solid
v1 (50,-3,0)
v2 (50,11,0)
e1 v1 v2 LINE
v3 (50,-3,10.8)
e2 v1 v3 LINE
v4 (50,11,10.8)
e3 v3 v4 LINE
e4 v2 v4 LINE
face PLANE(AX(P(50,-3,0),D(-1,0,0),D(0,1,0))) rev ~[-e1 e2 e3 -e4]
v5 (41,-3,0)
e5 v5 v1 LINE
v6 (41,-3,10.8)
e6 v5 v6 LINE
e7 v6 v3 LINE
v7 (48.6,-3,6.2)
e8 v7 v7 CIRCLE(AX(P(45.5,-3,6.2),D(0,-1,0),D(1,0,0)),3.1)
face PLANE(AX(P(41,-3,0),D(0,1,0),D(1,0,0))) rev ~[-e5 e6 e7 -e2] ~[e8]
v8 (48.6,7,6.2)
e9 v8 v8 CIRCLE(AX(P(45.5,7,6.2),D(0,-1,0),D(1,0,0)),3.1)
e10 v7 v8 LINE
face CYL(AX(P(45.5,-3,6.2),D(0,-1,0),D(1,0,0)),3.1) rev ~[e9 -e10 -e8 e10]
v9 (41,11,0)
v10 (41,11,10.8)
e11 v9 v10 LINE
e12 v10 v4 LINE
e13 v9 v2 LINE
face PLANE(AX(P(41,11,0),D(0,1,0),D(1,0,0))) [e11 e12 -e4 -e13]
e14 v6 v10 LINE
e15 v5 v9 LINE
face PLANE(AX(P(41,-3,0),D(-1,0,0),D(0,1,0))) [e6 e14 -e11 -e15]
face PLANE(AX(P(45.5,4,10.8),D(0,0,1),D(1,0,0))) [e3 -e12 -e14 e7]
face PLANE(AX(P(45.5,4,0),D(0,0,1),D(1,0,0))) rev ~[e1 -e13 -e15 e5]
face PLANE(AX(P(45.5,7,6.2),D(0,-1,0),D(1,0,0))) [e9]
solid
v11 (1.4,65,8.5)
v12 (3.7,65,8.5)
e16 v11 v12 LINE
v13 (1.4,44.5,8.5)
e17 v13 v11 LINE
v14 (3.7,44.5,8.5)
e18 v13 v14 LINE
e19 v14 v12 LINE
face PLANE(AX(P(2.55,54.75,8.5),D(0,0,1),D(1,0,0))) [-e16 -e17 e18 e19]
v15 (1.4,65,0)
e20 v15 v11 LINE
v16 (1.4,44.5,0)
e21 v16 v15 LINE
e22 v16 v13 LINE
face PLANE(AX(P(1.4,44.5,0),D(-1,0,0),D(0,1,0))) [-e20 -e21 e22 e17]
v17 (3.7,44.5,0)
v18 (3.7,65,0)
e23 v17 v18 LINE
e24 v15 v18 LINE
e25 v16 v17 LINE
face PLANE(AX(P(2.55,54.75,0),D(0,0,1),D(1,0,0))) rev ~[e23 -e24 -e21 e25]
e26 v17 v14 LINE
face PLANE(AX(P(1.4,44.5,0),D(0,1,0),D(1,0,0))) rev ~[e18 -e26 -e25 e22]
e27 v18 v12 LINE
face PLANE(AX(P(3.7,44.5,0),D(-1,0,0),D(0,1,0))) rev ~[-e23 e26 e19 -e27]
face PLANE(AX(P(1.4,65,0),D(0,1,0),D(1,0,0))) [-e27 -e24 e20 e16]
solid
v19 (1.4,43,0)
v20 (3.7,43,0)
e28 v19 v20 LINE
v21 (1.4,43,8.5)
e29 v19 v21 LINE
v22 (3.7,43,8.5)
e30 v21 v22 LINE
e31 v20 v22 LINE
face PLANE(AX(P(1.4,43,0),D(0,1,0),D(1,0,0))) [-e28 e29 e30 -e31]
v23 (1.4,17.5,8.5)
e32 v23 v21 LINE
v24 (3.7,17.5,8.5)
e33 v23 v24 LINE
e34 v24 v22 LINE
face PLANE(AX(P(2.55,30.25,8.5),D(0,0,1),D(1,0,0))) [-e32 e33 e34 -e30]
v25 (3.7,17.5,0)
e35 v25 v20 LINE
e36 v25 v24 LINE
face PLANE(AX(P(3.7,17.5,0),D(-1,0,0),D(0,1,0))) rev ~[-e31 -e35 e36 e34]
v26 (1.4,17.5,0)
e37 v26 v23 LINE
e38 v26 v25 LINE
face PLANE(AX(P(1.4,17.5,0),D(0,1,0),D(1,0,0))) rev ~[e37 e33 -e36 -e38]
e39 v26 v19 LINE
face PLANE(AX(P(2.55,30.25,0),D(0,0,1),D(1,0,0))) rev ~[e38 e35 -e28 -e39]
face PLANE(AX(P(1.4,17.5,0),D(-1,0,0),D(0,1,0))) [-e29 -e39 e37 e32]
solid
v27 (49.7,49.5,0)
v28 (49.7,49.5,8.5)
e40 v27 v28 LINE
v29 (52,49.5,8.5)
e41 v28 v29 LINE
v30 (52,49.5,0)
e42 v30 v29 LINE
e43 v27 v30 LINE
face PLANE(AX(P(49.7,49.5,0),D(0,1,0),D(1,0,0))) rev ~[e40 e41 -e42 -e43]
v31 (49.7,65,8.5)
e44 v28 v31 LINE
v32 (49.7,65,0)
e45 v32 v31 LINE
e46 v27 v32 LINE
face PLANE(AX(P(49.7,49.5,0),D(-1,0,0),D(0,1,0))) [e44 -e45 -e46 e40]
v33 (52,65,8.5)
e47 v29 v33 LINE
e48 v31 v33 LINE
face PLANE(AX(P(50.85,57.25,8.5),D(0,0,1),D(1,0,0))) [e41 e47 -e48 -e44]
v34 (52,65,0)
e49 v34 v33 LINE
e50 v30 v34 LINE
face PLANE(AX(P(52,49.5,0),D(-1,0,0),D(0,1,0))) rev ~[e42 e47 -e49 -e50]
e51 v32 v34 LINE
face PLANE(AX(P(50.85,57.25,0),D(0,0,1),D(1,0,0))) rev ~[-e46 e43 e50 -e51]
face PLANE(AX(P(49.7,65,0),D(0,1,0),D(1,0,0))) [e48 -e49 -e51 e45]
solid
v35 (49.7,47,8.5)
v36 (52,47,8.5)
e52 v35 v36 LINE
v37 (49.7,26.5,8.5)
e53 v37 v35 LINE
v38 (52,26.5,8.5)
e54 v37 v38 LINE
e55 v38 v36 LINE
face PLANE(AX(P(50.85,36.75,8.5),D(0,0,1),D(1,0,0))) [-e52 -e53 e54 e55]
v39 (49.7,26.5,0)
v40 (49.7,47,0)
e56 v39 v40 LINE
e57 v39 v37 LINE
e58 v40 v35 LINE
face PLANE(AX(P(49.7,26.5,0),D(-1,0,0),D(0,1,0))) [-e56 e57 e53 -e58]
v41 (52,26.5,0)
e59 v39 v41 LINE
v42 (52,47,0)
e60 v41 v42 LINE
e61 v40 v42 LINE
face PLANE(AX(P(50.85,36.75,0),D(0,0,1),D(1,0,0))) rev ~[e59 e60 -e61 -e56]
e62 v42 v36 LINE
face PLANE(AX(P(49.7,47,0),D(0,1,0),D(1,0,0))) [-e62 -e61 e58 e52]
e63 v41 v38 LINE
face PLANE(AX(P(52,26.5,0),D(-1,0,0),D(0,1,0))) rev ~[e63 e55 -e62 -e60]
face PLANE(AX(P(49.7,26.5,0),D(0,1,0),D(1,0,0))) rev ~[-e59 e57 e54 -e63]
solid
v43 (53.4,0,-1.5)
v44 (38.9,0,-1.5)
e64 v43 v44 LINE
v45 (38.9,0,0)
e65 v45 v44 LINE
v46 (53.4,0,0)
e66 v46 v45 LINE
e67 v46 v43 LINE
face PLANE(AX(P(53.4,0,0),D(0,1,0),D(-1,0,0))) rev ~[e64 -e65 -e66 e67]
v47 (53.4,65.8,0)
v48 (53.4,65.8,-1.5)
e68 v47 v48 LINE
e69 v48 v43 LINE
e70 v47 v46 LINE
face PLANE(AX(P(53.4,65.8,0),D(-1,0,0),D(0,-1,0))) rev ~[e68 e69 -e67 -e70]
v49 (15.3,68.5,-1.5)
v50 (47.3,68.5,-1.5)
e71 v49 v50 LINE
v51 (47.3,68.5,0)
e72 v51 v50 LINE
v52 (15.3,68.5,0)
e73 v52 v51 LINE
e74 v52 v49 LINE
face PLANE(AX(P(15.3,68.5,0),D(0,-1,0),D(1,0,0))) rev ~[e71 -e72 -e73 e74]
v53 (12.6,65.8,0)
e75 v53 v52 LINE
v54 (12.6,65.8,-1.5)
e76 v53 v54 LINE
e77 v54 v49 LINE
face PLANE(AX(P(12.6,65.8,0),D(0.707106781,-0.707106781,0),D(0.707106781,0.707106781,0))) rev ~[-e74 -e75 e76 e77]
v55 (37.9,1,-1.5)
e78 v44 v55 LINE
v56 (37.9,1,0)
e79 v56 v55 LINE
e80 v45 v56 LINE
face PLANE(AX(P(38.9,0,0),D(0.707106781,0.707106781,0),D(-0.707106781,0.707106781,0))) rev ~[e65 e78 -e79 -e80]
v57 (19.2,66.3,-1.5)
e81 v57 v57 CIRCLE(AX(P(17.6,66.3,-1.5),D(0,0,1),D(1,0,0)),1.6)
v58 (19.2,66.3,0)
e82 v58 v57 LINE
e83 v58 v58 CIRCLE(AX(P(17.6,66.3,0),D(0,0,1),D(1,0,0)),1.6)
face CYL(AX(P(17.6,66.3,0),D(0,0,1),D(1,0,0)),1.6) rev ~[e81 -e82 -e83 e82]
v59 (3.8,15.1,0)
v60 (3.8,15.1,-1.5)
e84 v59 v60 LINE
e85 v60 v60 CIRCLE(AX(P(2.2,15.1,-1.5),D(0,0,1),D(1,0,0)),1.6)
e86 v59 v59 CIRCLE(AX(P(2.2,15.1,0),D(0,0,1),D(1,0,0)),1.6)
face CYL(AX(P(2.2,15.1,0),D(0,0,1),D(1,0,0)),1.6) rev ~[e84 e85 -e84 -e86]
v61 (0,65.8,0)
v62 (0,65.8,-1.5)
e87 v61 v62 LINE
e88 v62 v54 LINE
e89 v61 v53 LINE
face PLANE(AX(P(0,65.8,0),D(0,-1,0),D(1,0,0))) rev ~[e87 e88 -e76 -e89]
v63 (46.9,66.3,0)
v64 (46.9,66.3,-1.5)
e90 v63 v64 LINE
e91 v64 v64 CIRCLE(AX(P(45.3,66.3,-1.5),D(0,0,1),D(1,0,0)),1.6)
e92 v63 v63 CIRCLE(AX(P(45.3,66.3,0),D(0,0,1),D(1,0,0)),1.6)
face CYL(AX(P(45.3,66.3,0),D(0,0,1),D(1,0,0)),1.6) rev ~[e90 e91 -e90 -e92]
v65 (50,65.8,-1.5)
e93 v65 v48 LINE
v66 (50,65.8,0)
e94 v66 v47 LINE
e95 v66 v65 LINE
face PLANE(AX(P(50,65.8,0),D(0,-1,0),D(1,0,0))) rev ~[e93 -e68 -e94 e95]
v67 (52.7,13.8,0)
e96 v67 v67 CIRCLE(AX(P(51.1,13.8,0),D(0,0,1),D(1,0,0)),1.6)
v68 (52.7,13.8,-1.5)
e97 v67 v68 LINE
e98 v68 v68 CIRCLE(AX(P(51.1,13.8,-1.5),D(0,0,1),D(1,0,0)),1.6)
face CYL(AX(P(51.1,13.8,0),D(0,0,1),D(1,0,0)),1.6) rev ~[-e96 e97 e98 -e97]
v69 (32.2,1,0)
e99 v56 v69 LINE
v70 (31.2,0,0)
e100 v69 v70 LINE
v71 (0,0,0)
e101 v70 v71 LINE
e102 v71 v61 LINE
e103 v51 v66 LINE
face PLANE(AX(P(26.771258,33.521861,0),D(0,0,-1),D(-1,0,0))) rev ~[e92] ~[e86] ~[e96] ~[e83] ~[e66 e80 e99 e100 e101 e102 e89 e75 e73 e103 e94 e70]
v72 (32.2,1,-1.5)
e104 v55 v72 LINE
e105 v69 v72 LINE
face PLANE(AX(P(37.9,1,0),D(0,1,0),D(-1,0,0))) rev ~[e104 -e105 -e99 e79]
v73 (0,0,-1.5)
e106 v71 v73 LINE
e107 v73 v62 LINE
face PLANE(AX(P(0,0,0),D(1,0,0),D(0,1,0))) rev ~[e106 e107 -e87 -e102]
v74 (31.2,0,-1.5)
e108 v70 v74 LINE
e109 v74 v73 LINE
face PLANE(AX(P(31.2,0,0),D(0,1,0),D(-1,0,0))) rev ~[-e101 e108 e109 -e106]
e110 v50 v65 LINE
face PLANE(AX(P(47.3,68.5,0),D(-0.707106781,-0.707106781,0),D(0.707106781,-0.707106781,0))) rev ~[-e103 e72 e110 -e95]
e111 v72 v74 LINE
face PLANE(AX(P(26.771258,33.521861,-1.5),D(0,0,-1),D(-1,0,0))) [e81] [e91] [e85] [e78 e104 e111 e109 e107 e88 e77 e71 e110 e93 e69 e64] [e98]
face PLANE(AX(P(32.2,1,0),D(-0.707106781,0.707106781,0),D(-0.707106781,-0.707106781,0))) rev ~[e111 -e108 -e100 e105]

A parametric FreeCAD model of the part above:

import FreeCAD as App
import Part
import Sketcher


def add_polygon(sketch, points):
    """Adds a closed chain of lines whose ends are joined by coincident constraints."""
    first, n = sketch.GeometryCount, len(points)
    for a, b in zip(points, points[1:] + points[:1]):
        sketch.addGeometry(Part.LineSegment(App.Vector(*a, 0), App.Vector(*b, 0)), False)
    for i in range(n):
        sketch.addConstraint(Sketcher.Constraint("Coincident", first + i, 2, first + (i + 1) % n, 1))

doc = App.newDocument("Part")
body = doc.addObject("PartDesign::Body", "Body")

sketch1 = doc.addObject("Sketcher::SketchObject", "Sketch")
body.addObject(sketch1)
sketch1.AttachmentSupport = (doc.XY_Plane, [""])
sketch1.MapMode = "FlatFace"
add_polygon(sketch1, [(53.4, 0), (53.4, 65.8), (50, 65.8), (47.3, 68.5), (15.3, 68.5), (12.6, 65.8), (0, 65.8), (0, 0), (31.2, 0), (32.2, 1), (37.9, 1), (38.9, 0)])
sketch1.addConstraint([
    Sketcher.Constraint("Vertical", 0),
    Sketcher.Constraint("Horizontal", 1),
    Sketcher.Constraint("Horizontal", 3),
    Sketcher.Constraint("Horizontal", 5),
    Sketcher.Constraint("Vertical", 6),
    Sketcher.Constraint("Horizontal", 7),
    Sketcher.Constraint("Horizontal", 9),
    Sketcher.Constraint("Horizontal", 11),
    Sketcher.Constraint("Coincident", 6, 2, -1, 1),
    Sketcher.Constraint("PointOnObject", 10, 2, -1),
    Sketcher.Constraint("Perpendicular", 2, 4),
    Sketcher.Constraint("Parallel", 4, 8),
    Sketcher.Constraint("Perpendicular", 8, 10),
    Sketcher.Constraint("Horizontal", 1, 2, 4, 2),
    Sketcher.Constraint("Equal", 2, 4),
    Sketcher.Constraint("DistanceX", 3, 2, 3, 1, 32.0),
    Sketcher.Constraint("DistanceX", 1, 2, 1, 1, 3.4),
    Sketcher.Constraint("DistanceX", 5, 2, 5, 1, 12.6),
    Sketcher.Constraint("DistanceX", 7, 1, 7, 2, 31.2),
    Sketcher.Constraint("DistanceX", 9, 1, 9, 2, 5.7),
    Sketcher.Constraint("DistanceX", 11, 1, 11, 2, 14.5),
    Sketcher.Constraint("DistanceY", 0, 1, 0, 2, 65.8),
    Sketcher.Constraint("DistanceX", -1, 1, 1, 2, 50.0),
])
pad1 = doc.addObject("PartDesign::Pad", "Pad")
body.addObject(pad1)
pad1.Profile = sketch1
pad1.Length = 1.5
pad1.Reversed = True

sketch2 = doc.addObject("Sketcher::SketchObject", "Sketch001")
body.addObject(sketch2)
sketch2.AttachmentSupport = (doc.XY_Plane, [""])
sketch2.MapMode = "FlatFace"
sketch2.addGeometry([
    Part.Circle(App.Vector(17.6, 66.3, 0), App.Vector(0, 0, 1), 1.6),
    Part.Circle(App.Vector(45.3, 66.3, 0), App.Vector(0, 0, 1), 1.6),
    Part.Circle(App.Vector(2.2, 15.1, 0), App.Vector(0, 0, 1), 1.6),
    Part.Circle(App.Vector(51.1, 13.8, 0), App.Vector(0, 0, 1), 1.6),
], False)
sketch2.addConstraint([
    Sketcher.Constraint("Equal", 0, 1),
    Sketcher.Constraint("Equal", 1, 2),
    Sketcher.Constraint("Equal", 2, 3),
    Sketcher.Constraint("Horizontal", 0, 3, 1, 3),
    Sketcher.Constraint("Diameter", 0, 3.2),
    Sketcher.Constraint("DistanceX", -1, 1, 0, 3, 17.6),
    Sketcher.Constraint("DistanceY", -1, 1, 0, 3, 66.3),
    Sketcher.Constraint("DistanceX", -1, 1, 1, 3, 45.3),
    Sketcher.Constraint("DistanceX", -1, 1, 2, 3, 2.2),
    Sketcher.Constraint("DistanceY", -1, 1, 2, 3, 15.1),
    Sketcher.Constraint("DistanceX", -1, 1, 3, 3, 51.1),
    Sketcher.Constraint("DistanceY", -1, 1, 3, 3, 13.8),
])
pocket1 = doc.addObject("PartDesign::Pocket", "Pocket")
body.addObject(pocket1)
pocket1.Profile = sketch2
pocket1.Type = "ThroughAll"
body2 = doc.addObject("PartDesign::Body", "Body001")

sketch3 = doc.addObject("Sketcher::SketchObject", "Sketch002")
body2.addObject(sketch3)
sketch3.AttachmentSupport = (doc.getObject("XY_Plane001"), [""])
sketch3.MapMode = "FlatFace"
add_polygon(sketch3, [(41, 11), (41, -3), (50, -3), (50, 11)])
sketch3.addConstraint([
    Sketcher.Constraint("Vertical", 0),
    Sketcher.Constraint("Horizontal", 1),
    Sketcher.Constraint("Vertical", 2),
    Sketcher.Constraint("Horizontal", 3),
    Sketcher.Constraint("DistanceX", 1, 1, 1, 2, 9.0),
    Sketcher.Constraint("DistanceY", 0, 2, 0, 1, 14.0),
    Sketcher.Constraint("DistanceX", -1, 1, 0, 2, 41.0),
    Sketcher.Constraint("DistanceY", 0, 2, -1, 1, 3.0),
])
pad2 = doc.addObject("PartDesign::Pad", "Pad001")
body2.addObject(pad2)
pad2.Profile = sketch3
pad2.Length = 10.8

sketch4 = doc.addObject("Sketcher::SketchObject", "Sketch003")
body2.addObject(sketch4)
sketch4.AttachmentSupport = (doc.getObject("XZ_Plane001"), [""])
sketch4.MapMode = "FlatFace"
sketch4.AttachmentOffset = App.Placement(App.Vector(0, 0, 3), App.Rotation())
sketch4.addGeometry(Part.Circle(App.Vector(45.5, 6.2, 0), App.Vector(0, 0, 1), 3.1), False)
sketch4.addConstraint([
    Sketcher.Constraint("Diameter", 0, 6.2),
    Sketcher.Constraint("DistanceX", -1, 1, 0, 3, 45.5),
    Sketcher.Constraint("DistanceY", -1, 1, 0, 3, 6.2),
])
pocket2 = doc.addObject("PartDesign::Pocket", "Pocket001")
body2.addObject(pocket2)
pocket2.Profile = sketch4
pocket2.Length = 10
body3 = doc.addObject("PartDesign::Body", "Body002")

sketch5 = doc.addObject("Sketcher::SketchObject", "Sketch004")
body3.addObject(sketch5)
sketch5.AttachmentSupport = (doc.getObject("XY_Plane002"), [""])
sketch5.MapMode = "FlatFace"
add_polygon(sketch5, [(1.4, 65), (1.4, 44.5), (3.7, 44.5), (3.7, 65)])
sketch5.addConstraint([
    Sketcher.Constraint("Vertical", 0),
    Sketcher.Constraint("Horizontal", 1),
    Sketcher.Constraint("Vertical", 2),
    Sketcher.Constraint("Horizontal", 3),
    Sketcher.Constraint("DistanceX", 1, 1, 1, 2, 2.3),
    Sketcher.Constraint("DistanceY", 0, 2, 0, 1, 20.5),
    Sketcher.Constraint("DistanceY", -1, 1, 2, 2, 65.0),
    Sketcher.Constraint("DistanceX", -1, 1, 0, 2, 1.4),
])
pad3 = doc.addObject("PartDesign::Pad", "Pad002")
body3.addObject(pad3)
pad3.Profile = sketch5
pad3.Length = 8.5
body4 = doc.addObject("PartDesign::Body", "Body003")

sketch6 = doc.addObject("Sketcher::SketchObject", "Sketch005")
body4.addObject(sketch6)
sketch6.AttachmentSupport = (doc.getObject("XY_Plane003"), [""])
sketch6.MapMode = "FlatFace"
add_polygon(sketch6, [(1.4, 43), (1.4, 17.5), (3.7, 17.5), (3.7, 43)])
sketch6.addConstraint([
    Sketcher.Constraint("Vertical", 0),
    Sketcher.Constraint("Horizontal", 1),
    Sketcher.Constraint("Vertical", 2),
    Sketcher.Constraint("Horizontal", 3),
    Sketcher.Constraint("DistanceX", 1, 1, 1, 2, 2.3),
    Sketcher.Constraint("DistanceY", 0, 2, 0, 1, 25.5),
    Sketcher.Constraint("DistanceY", -1, 1, 2, 2, 43.0),
    Sketcher.Constraint("DistanceX", -1, 1, 0, 2, 1.4),
])
pad4 = doc.addObject("PartDesign::Pad", "Pad003")
body4.addObject(pad4)
pad4.Profile = sketch6
pad4.Length = 8.5
body5 = doc.addObject("PartDesign::Body", "Body004")

sketch7 = doc.addObject("Sketcher::SketchObject", "Sketch006")
body5.addObject(sketch7)
sketch7.AttachmentSupport = (doc.getObject("XY_Plane004"), [""])
sketch7.MapMode = "FlatFace"
add_polygon(sketch7, [(49.7, 65), (49.7, 49.5), (52, 49.5), (52, 65)])
sketch7.addConstraint([
    Sketcher.Constraint("Vertical", 0),
    Sketcher.Constraint("Horizontal", 1),
    Sketcher.Constraint("Vertical", 2),
    Sketcher.Constraint("Horizontal", 3),
    Sketcher.Constraint("DistanceX", 1, 1, 1, 2, 2.3),
    Sketcher.Constraint("DistanceY", 0, 2, 0, 1, 15.5),
    Sketcher.Constraint("DistanceX", -1, 1, 1, 2, 52.0),
    Sketcher.Constraint("DistanceY", -1, 1, 2, 2, 65.0),
])
pad5 = doc.addObject("PartDesign::Pad", "Pad004")
body5.addObject(pad5)
pad5.Profile = sketch7
pad5.Length = 8.5
body6 = doc.addObject("PartDesign::Body", "Body005")

sketch8 = doc.addObject("Sketcher::SketchObject", "Sketch007")
body6.addObject(sketch8)
sketch8.AttachmentSupport = (doc.getObject("XY_Plane005"), [""])
sketch8.MapMode = "FlatFace"
add_polygon(sketch8, [(49.7, 47), (49.7, 26.5), (52, 26.5), (52, 47)])
sketch8.addConstraint([
    Sketcher.Constraint("Vertical", 0),
    Sketcher.Constraint("Horizontal", 1),
    Sketcher.Constraint("Vertical", 2),
    Sketcher.Constraint("Horizontal", 3),
    Sketcher.Constraint("DistanceX", 1, 1, 1, 2, 2.3),
    Sketcher.Constraint("DistanceY", 0, 2, 0, 1, 20.5),
    Sketcher.Constraint("DistanceX", -1, 1, 1, 2, 52.0),
    Sketcher.Constraint("DistanceY", -1, 1, 2, 2, 47.0),
])
pad6 = doc.addObject("PartDesign::Pad", "Pad005")
body6.addObject(pad6)
pad6.Profile = sketch8
pad6.Length = 8.5

doc.recompute()
